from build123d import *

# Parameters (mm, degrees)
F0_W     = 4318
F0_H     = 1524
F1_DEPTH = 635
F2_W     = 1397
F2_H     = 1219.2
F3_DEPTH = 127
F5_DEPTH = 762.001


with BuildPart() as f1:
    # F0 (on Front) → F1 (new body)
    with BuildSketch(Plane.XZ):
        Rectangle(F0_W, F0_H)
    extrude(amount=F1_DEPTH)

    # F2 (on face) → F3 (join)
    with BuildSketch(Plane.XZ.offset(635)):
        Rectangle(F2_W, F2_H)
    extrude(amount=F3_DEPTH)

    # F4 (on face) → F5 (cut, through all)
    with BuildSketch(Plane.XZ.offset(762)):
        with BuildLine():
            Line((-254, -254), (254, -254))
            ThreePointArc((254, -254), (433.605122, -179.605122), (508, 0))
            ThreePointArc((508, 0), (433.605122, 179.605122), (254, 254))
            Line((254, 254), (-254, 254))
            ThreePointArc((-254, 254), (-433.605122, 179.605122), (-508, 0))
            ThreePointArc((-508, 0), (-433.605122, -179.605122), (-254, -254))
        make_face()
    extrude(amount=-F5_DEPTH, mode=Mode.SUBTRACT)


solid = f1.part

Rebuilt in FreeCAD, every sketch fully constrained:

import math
import FreeCAD as App
import Part
import Sketcher
Q = App.Units.Quantity

doc = App.newDocument("Part")
body = doc.addObject("PartDesign::Body", "Body")

# Sketch on XZ plane
sketch1 = body.newObject("Sketcher::SketchObject", "Sketch")
sketch1.AttachmentSupport = (doc.getObject("XZ_Plane"), [""])
sketch1.MapMode = "FlatFace"
sketch1.addGeometry([
    Part.LineSegment(App.Vector(-2159, 762, 0), App.Vector(-2159, -762, 0)),
    Part.LineSegment(App.Vector(-2159, -762, 0), App.Vector(2159, -762, 0)),
    Part.LineSegment(App.Vector(2159, -762, 0), App.Vector(2159, 762, 0)),
    Part.LineSegment(App.Vector(2159, 762, 0), App.Vector(-2159, 762, 0)),
], False)
sketch1.addConstraint([
    Sketcher.Constraint("Coincident", 0, 2, 1, 1),
    Sketcher.Constraint("Coincident", 1, 2, 2, 1),
    Sketcher.Constraint("Coincident", 2, 2, 3, 1),
    Sketcher.Constraint("Coincident", 3, 2, 0, 1),
    Sketcher.Constraint("Vertical", 0),
    Sketcher.Constraint("Horizontal", 1),
    Sketcher.Constraint("Vertical", 2),
    Sketcher.Constraint("Horizontal", 3),
    Sketcher.Constraint("Symmetric", 0, 2, 2, 2, -1, 1),
    Sketcher.Constraint("DistanceX", 1, 1, 1, 2, Q("170 in")),
    Sketcher.Constraint("DistanceY", 0, 2, 0, 1, Q("60 in")),
])
pad1 = body.newObject("PartDesign::Pad", "Pad")
pad1.Profile = sketch1
pad1.Length = Q("25 in")

# Sketch on XZ plane
sketch2 = body.newObject("Sketcher::SketchObject", "Sketch001")
sketch2.AttachmentSupport = (doc.getObject("XZ_Plane"), [""])
sketch2.MapMode = "FlatFace"
sketch2.AttachmentOffset = App.Placement(App.Vector(0, 0, 25 * 25.4), App.Rotation())
sketch2.addGeometry([
    Part.LineSegment(App.Vector(-698.5, 609.6, 0), App.Vector(-698.5, -609.6, 0)),
    Part.LineSegment(App.Vector(-698.5, -609.6, 0), App.Vector(698.5, -609.6, 0)),
    Part.LineSegment(App.Vector(698.5, -609.6, 0), App.Vector(698.5, 609.6, 0)),
    Part.LineSegment(App.Vector(698.5, 609.6, 0), App.Vector(-698.5, 609.6, 0)),
], False)
sketch2.addConstraint([
    Sketcher.Constraint("Coincident", 0, 2, 1, 1),
    Sketcher.Constraint("Coincident", 1, 2, 2, 1),
    Sketcher.Constraint("Coincident", 2, 2, 3, 1),
    Sketcher.Constraint("Coincident", 3, 2, 0, 1),
    Sketcher.Constraint("Vertical", 0),
    Sketcher.Constraint("Horizontal", 1),
    Sketcher.Constraint("Vertical", 2),
    Sketcher.Constraint("Horizontal", 3),
    Sketcher.Constraint("Symmetric", 0, 2, 2, 2, -1, 1),
    Sketcher.Constraint("DistanceX", 1, 1, 1, 2, Q("55 in")),
    Sketcher.Constraint("DistanceY", 0, 2, 0, 1, Q("48 in")),
])
pad2 = body.newObject("PartDesign::Pad", "Pad001")
pad2.Profile = sketch2
pad2.Length = Q("5 in")

# Sketch on XZ plane
sketch3 = body.newObject("Sketcher::SketchObject", "Sketch002")
sketch3.AttachmentSupport = (doc.getObject("XZ_Plane"), [""])
sketch3.MapMode = "FlatFace"
sketch3.AttachmentOffset = App.Placement(App.Vector(0, 0, 30 * 25.4), App.Rotation())
sketch3.addGeometry([
    Part.LineSegment(App.Vector(-254, -254, 0), App.Vector(254, -254, 0)),  # 0
    Part.ArcOfCircle(Part.Circle(App.Vector(253.999999, 0.000001, 0), App.Vector(0, 0, 1), 254.000001), math.radians(-90), math.radians(0)),  # 1
    Part.ArcOfCircle(Part.Circle(App.Vector(253.999999, -0.000001, 0), App.Vector(0, 0, 1), 254.000001), math.radians(0), math.radians(90)),  # 2
    Part.LineSegment(App.Vector(254, 254, 0), App.Vector(-254, 254, 0)),  # 3
    Part.ArcOfCircle(Part.Circle(App.Vector(-253.999999, -0.000001, 0), App.Vector(0, 0, 1), 254.000001), math.radians(90), math.radians(180)),  # 4
    Part.ArcOfCircle(Part.Circle(App.Vector(-253.999999, 0.000001, 0), App.Vector(0, 0, 1), 254.000001), math.radians(-180), math.radians(-90)),  # 5
], False)
sketch3.addConstraint([
    Sketcher.Constraint("Tangent", 0, 2, 1, 1),
    Sketcher.Constraint("Tangent", 1, 2, 2, 1),
    Sketcher.Constraint("Tangent", 2, 2, 3, 1),
    Sketcher.Constraint("Tangent", 3, 2, 4, 1),
    Sketcher.Constraint("Tangent", 4, 2, 5, 1),
    Sketcher.Constraint("Tangent", 5, 2, 0, 1),
    Sketcher.Constraint("Horizontal", 0),
    Sketcher.Constraint("Horizontal", 3),
    Sketcher.Constraint("Equal", 1, 2),
    Sketcher.Constraint("Equal", 2, 4),
    Sketcher.Constraint("Symmetric", 1, 3, 4, 3, -1, 1),
    Sketcher.Constraint("PointOnObject", 1, 2, -1),
    Sketcher.Constraint("PointOnObject", 4, 2, -1),
    Sketcher.Constraint("Radius", 1, Q("10.0000001 in")),
    Sketcher.Constraint("DistanceX", 0, 1, 0, 2, Q("20 in")),
])
pocket1 = body.newObject("PartDesign::Pocket", "Pocket")
pocket1.Profile = sketch3
pocket1.Type = "ThroughAll"

doc.recompute()
